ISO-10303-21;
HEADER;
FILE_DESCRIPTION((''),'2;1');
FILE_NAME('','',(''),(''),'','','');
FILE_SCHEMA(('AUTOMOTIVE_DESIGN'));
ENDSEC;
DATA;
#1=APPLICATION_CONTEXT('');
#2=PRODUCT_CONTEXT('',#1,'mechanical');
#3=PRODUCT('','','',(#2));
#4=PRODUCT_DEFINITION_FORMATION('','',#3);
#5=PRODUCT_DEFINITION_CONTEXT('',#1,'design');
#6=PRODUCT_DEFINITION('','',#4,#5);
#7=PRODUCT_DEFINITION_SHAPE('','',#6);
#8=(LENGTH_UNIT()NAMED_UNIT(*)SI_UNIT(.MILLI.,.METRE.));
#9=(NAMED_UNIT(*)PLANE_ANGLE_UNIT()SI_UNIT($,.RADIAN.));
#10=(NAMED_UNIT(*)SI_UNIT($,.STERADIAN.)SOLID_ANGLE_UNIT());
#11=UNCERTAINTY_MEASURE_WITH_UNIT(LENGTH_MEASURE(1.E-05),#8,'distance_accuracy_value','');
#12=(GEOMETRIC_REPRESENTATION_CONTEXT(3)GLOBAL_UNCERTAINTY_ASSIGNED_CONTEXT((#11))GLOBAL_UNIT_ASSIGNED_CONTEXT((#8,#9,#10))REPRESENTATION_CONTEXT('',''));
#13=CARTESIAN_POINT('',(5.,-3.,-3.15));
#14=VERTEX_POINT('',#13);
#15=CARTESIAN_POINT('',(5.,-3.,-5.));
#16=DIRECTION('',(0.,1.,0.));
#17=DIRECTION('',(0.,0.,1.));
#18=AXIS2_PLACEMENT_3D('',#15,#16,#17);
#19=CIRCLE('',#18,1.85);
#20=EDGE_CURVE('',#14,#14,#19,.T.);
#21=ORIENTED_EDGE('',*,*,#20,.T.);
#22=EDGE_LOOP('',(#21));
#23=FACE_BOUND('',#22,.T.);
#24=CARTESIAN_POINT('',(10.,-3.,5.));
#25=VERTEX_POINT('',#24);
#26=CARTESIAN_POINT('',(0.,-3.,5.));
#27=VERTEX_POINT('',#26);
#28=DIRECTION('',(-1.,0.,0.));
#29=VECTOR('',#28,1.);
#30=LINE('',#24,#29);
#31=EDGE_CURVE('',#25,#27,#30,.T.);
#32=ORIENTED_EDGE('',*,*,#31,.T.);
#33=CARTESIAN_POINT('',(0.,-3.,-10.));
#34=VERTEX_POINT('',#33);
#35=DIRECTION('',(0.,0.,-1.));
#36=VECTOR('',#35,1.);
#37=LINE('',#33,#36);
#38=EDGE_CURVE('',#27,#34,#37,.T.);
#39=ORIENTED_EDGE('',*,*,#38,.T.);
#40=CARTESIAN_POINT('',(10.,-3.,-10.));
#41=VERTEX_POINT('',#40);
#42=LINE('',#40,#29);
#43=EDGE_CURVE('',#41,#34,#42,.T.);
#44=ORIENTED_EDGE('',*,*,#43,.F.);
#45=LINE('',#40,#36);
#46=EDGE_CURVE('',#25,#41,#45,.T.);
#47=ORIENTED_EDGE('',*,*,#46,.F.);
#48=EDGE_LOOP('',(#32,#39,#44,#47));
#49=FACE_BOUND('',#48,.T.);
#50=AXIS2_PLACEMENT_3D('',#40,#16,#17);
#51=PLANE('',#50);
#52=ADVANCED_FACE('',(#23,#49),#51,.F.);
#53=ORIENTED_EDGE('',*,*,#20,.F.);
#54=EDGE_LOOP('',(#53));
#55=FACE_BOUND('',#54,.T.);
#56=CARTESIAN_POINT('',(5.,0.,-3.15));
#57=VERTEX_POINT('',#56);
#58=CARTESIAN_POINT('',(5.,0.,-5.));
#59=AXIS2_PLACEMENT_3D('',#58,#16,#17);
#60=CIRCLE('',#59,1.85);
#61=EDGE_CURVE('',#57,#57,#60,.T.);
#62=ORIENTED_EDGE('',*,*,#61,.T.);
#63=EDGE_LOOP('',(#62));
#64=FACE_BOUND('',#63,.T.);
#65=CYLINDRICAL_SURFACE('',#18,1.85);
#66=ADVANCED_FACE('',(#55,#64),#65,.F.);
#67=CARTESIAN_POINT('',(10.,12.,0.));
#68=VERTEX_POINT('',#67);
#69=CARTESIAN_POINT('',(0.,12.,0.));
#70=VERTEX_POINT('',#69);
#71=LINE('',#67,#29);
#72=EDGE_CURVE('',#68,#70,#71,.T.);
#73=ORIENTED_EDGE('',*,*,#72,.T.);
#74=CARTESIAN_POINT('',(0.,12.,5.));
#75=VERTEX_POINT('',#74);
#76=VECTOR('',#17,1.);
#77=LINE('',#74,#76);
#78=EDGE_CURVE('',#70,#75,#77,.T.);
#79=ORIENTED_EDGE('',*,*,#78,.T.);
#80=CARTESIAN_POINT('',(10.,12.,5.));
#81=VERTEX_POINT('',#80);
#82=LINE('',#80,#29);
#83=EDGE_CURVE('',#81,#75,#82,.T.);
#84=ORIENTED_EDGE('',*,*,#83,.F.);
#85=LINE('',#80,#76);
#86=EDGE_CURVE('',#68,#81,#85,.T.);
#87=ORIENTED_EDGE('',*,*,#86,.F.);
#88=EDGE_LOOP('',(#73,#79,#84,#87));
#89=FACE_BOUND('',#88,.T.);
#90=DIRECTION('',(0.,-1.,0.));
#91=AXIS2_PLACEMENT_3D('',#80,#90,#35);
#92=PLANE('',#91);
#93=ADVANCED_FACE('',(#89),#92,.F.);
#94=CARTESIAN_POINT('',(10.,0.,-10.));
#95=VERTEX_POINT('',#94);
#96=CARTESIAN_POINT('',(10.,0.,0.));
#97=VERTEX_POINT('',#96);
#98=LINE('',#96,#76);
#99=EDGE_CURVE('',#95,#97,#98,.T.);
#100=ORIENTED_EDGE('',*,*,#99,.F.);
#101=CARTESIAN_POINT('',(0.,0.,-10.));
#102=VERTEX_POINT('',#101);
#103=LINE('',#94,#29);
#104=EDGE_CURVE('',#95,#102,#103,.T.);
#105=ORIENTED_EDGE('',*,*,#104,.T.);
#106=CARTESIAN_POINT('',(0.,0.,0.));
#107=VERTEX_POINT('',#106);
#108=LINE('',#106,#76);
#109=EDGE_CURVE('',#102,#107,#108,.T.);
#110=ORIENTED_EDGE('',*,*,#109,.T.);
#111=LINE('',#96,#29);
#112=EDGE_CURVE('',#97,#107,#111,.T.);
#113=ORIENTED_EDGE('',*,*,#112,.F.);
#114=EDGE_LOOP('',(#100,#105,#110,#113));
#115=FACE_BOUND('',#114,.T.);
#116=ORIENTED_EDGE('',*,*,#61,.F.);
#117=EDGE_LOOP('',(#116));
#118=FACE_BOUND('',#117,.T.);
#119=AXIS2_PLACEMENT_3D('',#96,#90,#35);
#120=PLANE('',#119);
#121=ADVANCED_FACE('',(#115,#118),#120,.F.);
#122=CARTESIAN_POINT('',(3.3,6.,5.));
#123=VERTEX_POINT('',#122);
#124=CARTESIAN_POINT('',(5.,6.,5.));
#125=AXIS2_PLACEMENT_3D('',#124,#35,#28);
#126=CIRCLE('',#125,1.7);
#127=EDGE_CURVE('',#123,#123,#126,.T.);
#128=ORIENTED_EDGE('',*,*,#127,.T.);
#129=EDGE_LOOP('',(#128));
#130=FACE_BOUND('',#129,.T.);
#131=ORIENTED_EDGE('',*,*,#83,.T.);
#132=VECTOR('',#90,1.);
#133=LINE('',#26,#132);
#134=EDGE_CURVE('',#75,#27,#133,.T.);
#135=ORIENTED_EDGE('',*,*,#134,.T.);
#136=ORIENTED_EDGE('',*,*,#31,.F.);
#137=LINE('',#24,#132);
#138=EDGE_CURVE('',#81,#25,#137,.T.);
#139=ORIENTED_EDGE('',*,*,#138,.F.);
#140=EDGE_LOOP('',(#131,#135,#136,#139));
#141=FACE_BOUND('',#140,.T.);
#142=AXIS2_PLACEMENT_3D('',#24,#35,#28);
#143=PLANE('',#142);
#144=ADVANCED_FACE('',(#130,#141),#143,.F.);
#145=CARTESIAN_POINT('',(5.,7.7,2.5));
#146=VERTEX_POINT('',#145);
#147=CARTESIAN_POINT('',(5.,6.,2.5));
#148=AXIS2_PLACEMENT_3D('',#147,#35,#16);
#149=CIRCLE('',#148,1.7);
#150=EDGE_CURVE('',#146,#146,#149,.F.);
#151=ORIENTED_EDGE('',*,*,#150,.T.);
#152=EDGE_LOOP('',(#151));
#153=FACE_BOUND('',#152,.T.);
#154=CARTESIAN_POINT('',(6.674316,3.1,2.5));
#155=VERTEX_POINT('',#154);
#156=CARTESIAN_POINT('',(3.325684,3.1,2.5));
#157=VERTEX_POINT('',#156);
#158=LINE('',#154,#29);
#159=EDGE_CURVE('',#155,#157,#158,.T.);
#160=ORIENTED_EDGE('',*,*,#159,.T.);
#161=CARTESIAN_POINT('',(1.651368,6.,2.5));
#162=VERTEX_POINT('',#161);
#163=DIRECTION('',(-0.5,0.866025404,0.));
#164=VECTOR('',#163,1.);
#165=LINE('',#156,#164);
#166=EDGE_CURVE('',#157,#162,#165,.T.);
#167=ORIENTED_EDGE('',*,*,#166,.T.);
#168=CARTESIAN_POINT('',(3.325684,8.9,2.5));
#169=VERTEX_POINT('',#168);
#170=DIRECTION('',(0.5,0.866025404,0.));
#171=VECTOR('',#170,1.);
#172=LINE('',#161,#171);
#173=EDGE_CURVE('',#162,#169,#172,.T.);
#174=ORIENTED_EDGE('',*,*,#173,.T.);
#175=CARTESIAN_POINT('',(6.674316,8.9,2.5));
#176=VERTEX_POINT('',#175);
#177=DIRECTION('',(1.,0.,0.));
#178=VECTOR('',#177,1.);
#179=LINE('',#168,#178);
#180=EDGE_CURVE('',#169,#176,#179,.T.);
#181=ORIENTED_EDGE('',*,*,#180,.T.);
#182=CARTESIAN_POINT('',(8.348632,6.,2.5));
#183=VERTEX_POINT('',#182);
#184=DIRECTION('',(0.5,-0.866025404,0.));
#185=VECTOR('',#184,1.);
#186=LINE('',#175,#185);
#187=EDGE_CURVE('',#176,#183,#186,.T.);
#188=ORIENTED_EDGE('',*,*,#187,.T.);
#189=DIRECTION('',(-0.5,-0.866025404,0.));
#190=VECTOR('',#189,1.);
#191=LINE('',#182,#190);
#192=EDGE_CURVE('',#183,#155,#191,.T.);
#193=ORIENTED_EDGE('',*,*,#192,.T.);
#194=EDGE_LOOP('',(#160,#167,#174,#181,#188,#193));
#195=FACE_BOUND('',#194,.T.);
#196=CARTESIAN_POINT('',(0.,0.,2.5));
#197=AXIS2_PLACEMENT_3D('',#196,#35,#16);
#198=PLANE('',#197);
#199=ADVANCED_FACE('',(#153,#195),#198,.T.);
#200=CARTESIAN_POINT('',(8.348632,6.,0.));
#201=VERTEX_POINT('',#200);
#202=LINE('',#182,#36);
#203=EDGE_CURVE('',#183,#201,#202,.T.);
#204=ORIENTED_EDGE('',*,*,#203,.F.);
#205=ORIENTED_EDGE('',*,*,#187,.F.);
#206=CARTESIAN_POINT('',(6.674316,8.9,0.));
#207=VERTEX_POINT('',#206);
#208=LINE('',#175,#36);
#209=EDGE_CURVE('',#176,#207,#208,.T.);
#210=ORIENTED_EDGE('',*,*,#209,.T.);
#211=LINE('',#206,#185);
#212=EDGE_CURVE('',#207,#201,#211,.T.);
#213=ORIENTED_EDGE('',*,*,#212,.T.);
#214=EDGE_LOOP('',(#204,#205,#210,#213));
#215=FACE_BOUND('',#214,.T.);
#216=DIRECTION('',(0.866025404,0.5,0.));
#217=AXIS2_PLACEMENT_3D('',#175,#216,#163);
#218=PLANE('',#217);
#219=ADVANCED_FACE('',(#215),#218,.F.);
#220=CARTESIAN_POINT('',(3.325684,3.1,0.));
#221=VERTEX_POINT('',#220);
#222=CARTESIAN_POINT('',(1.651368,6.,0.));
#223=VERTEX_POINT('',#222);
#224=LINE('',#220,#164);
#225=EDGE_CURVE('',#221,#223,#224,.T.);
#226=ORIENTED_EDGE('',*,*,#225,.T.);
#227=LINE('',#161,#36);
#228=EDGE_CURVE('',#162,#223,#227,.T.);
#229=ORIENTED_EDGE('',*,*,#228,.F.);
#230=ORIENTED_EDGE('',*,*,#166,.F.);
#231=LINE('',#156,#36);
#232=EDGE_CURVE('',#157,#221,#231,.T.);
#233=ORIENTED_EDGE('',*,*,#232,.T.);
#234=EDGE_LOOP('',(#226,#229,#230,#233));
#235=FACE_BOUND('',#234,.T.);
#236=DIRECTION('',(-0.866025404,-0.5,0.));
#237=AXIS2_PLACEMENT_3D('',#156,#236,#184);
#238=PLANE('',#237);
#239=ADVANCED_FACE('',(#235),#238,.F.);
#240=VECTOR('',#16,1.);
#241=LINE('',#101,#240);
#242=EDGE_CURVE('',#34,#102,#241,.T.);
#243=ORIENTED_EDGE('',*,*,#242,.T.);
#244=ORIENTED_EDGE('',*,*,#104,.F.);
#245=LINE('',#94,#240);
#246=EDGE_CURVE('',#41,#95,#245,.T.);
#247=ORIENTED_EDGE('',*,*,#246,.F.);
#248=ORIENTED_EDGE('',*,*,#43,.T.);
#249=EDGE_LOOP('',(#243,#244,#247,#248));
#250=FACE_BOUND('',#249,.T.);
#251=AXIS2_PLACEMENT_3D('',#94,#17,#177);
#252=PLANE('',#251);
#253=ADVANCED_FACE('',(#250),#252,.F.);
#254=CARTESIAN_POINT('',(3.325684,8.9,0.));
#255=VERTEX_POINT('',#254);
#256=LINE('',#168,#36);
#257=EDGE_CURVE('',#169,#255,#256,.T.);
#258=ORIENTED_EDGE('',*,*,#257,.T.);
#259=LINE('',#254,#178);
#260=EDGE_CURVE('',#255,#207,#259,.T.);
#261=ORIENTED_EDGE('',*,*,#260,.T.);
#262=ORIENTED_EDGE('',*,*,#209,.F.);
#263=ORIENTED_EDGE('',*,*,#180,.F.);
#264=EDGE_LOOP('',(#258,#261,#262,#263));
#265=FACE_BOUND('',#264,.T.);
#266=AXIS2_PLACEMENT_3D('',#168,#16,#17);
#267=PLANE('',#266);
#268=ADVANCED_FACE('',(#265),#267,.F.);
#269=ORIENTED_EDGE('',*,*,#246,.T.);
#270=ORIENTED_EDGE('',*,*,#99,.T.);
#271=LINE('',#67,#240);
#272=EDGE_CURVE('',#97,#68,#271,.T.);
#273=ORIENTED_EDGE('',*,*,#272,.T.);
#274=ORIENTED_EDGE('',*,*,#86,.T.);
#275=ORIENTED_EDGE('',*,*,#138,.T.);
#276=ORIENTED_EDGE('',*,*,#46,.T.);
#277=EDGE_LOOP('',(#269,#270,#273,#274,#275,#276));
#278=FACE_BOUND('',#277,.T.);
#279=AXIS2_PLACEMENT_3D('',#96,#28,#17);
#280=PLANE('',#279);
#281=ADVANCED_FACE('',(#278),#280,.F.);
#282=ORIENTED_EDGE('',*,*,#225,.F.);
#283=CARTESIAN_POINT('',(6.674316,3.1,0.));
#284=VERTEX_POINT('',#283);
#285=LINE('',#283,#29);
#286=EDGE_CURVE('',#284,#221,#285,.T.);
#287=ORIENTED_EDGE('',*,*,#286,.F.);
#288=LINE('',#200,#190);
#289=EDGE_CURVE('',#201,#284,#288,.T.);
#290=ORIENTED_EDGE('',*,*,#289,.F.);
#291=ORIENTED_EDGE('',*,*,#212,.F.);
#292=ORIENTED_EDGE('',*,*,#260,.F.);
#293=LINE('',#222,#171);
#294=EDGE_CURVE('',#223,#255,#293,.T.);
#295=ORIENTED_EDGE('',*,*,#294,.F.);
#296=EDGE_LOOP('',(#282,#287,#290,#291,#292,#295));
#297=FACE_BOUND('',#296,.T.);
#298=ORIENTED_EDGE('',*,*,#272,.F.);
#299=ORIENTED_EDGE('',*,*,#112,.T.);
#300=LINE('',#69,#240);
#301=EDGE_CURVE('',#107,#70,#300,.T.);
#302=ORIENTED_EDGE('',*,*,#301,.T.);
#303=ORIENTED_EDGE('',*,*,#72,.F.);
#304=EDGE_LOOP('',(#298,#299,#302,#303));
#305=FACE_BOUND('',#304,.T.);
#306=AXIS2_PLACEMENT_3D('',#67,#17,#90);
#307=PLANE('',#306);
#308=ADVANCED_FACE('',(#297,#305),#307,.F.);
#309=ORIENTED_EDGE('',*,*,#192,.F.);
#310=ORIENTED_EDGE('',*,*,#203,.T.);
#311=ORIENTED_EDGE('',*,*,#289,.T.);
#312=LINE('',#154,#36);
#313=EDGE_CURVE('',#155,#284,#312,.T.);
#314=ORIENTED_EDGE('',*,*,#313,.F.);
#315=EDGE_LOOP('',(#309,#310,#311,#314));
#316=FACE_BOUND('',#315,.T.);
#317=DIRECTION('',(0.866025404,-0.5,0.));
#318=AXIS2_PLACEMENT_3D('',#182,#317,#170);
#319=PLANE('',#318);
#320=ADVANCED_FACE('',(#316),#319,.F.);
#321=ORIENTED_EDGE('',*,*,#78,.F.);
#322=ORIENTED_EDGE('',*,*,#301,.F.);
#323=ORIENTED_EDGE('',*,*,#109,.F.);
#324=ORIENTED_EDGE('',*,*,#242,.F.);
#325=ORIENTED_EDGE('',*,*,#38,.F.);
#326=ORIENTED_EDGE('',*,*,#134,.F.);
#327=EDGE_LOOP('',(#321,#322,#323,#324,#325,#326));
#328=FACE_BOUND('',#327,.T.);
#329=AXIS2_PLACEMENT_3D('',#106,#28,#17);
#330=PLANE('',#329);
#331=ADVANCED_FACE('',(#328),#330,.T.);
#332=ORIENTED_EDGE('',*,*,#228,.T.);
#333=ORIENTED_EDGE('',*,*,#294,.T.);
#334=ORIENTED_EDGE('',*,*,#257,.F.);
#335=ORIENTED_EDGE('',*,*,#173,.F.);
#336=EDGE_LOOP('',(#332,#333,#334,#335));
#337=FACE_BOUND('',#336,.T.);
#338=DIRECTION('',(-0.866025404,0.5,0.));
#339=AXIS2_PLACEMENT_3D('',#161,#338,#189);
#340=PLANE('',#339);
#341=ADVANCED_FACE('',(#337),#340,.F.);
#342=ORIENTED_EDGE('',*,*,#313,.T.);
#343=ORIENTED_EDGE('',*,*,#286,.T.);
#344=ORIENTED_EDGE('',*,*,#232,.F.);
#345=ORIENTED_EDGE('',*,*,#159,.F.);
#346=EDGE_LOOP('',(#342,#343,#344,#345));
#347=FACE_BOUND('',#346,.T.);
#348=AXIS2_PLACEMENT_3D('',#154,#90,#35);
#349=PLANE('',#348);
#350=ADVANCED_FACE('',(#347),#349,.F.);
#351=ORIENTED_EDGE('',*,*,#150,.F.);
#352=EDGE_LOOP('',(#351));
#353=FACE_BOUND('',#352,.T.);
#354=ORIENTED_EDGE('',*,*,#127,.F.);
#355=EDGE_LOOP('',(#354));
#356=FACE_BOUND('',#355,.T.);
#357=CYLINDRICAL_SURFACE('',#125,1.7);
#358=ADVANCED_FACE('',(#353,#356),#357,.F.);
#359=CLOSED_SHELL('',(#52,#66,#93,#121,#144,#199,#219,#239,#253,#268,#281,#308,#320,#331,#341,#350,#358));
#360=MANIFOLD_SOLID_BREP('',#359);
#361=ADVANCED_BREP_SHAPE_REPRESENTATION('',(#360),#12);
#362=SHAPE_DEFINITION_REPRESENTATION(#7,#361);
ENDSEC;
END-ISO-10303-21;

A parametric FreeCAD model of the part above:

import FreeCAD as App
import Part
import Sketcher
from FreeCAD import Vector
Q = App.Units.Quantity

doc = App.newDocument("Part")
params = doc.addObject("Spreadsheet::Sheet", "Params")
for row, (alias, value) in enumerate([
    ("sketch1_width", "15 mm"),
    ("sketch1_width2", "3 mm"),
    ("sketch1_height", "5 mm"),
    ("pad1_length", "10 mm"),
    ("sketch2_diameter", "3.7 mm"),
    ("sketch3_diameter", "3.4 mm"),
    ("pocket3_length", "2.5 mm"),
], start=1):
    params.set(f"A{row}", alias)
    params.set(f"B{row}", "=" + value)
    params.setAlias(f"B{row}", alias)

body = doc.addObject("PartDesign::Body", "Body")

sketch1 = body.newObject("Sketcher::SketchObject", "Sketch")
sketch1.AttachmentSupport = (doc.getObject("YZ_Plane"), [""])
sketch1.MapMode = "FlatFace"
sketch1.addGeometry([
    Part.LineSegment(Vector(12, 0, 0), Vector(12, 5, 0)),
    Part.LineSegment(Vector(12, 5, 0), Vector(-3, 5, 0)),
    Part.LineSegment(Vector(-3, 5, 0), Vector(-3, -10, 0)),
    Part.LineSegment(Vector(-3, -10, 0), Vector(0, -10, 0)),
    Part.LineSegment(Vector(0, -10, 0), Vector(0, 0, 0)),
    Part.LineSegment(Vector(0, 0, 0), Vector(12, 0, 0)),
], False)
sketch1.addConstraint([
    Sketcher.Constraint("Coincident", 0, 2, 1, 1),
    Sketcher.Constraint("Coincident", 1, 2, 2, 1),
    Sketcher.Constraint("Coincident", 2, 2, 3, 1),
    Sketcher.Constraint("Coincident", 3, 2, 4, 1),
    Sketcher.Constraint("Coincident", 4, 2, 5, 1),
    Sketcher.Constraint("Coincident", 5, 2, 0, 1),
    Sketcher.Constraint("Vertical", 0),
    Sketcher.Constraint("Horizontal", 1),
    Sketcher.Constraint("Vertical", 2),
    Sketcher.Constraint("Horizontal", 3),
    Sketcher.Constraint("Vertical", 4),
    Sketcher.Constraint("Horizontal", 5),
    Sketcher.Constraint("Coincident", 4, 2, -1, 1),
    Sketcher.Constraint("Equal", 1, 2),
    Sketcher.Constraint("DistanceX", 1, 2, 1, 1, Q("15 mm")),
    Sketcher.Constraint("DistanceX", 3, 1, 3, 2, Q("3 mm")),
    Sketcher.Constraint("DistanceY", 0, 1, 0, 2, Q("5 mm")),
])
sketch1.setExpression("Constraints[14]", "Params.sketch1_width")
sketch1.setExpression("Constraints[15]", "Params.sketch1_width2")
sketch1.setExpression("Constraints[16]", "Params.sketch1_height")
pad1 = body.newObject("PartDesign::Pad", "Pad")
pad1.Profile = sketch1
pad1.setExpression("Length", "Params.pad1_length")

sketch2 = body.newObject("Sketcher::SketchObject", "Sketch001")
sketch2.AttachmentSupport = (doc.getObject("XZ_Plane"), [""])
sketch2.MapMode = "FlatFace"
sketch2.addGeometry(Part.Circle(Vector(5, -5, 0), Vector(0, 0, 1), 1.9), False)
sketch2.addConstraint([
    Sketcher.Constraint("Diameter", 0, Q("3.7 mm")),
    Sketcher.Constraint("DistanceX", -1, 1, 0, 3, Q("5 mm")),
    Sketcher.Constraint("DistanceY", 0, 3, -1, 1, Q("5 mm")),
])
sketch2.setExpression("Constraints[0]", "Params.sketch2_diameter")
pocket1 = body.newObject("PartDesign::Pocket", "Pocket")
pocket1.Profile = sketch2
pocket1.Type = "ThroughAll"
pocket1.Reversed = True

sketch3 = body.newObject("Sketcher::SketchObject", "Sketch002")
sketch3.AttachmentSupport = (doc.getObject("XY_Plane"), [""])
sketch3.MapMode = "FlatFace"
sketch3.addGeometry(Part.Circle(Vector(5, 6, 0), Vector(0, 0, 1), 1.7), False)
sketch3.addConstraint([
    Sketcher.Constraint("Diameter", 0, Q("3.4 mm")),
    Sketcher.Constraint("DistanceX", -1, 1, 0, 3, Q("5 mm")),
    Sketcher.Constraint("DistanceY", -1, 1, 0, 3, Q("6 mm")),
])
sketch3.setExpression("Constraints[0]", "Params.sketch3_diameter")
pocket2 = body.newObject("PartDesign::Pocket", "Pocket001")
pocket2.Profile = sketch3
pocket2.Type = "ThroughAll"
pocket2.Reversed = True

sketch4 = body.newObject("Sketcher::SketchObject", "Sketch003")
sketch4.AttachmentSupport = (doc.getObject("XY_Plane"), [""])
sketch4.MapMode = "FlatFace"
sketch4.addGeometry([
    Part.LineSegment(Vector(3.3, 3.1, 0), Vector(1.7, 6, 0)),
    Part.LineSegment(Vector(1.7, 6, 0), Vector(3.3, 8.9, 0)),
    Part.LineSegment(Vector(3.3, 8.9, 0), Vector(6.7, 8.9, 0)),
    Part.LineSegment(Vector(6.7, 8.9, 0), Vector(8.3, 6, 0)),
    Part.LineSegment(Vector(8.3, 6, 0), Vector(6.7, 3.1, 0)),
    Part.LineSegment(Vector(6.7, 3.1, 0), Vector(3.3, 3.1, 0)),
], False)
sketch4.addConstraint([
    Sketcher.Constraint("Coincident", 0, 2, 1, 1),
    Sketcher.Constraint("Coincident", 1, 2, 2, 1),
    Sketcher.Constraint("Coincident", 2, 2, 3, 1),
    Sketcher.Constraint("Coincident", 3, 2, 4, 1),
    Sketcher.Constraint("Coincident", 4, 2, 5, 1),
    Sketcher.Constraint("Coincident", 5, 2, 0, 1),
    Sketcher.Constraint("Horizontal", 2),
    Sketcher.Constraint("Horizontal", 5),
    Sketcher.Constraint("Parallel", 0, 3),
    Sketcher.Constraint("Parallel", 1, 4),
    Sketcher.Constraint("Horizontal", 0, 2, 3, 2),
    Sketcher.Constraint("Vertical", 2, 2, 4, 2),
    Sketcher.Constraint("Vertical", 1, 2, 5, 2),
    Sketcher.Constraint("Angle", 0, Q("120 deg")),
    Sketcher.Constraint("DistanceY", -1, 1, 0, 2, Q("6 mm")),
    Sketcher.Constraint("DistanceY", -1, 1, 1, 2, Q("8.9 mm")),
    Sketcher.Constraint("DistanceX", 2, 1, 2, 2, Q("3.348632 mm")),
    Sketcher.Constraint("DistanceX", -1, 1, 0, 2, Q("1.651368 mm")),
])
pocket3 = body.newObject("PartDesign::Pocket", "Pocket002")
pocket3.Profile = sketch4
pocket3.setExpression("Length", "Params.pocket3_length")
pocket3.Reversed = True

doc.recompute()
